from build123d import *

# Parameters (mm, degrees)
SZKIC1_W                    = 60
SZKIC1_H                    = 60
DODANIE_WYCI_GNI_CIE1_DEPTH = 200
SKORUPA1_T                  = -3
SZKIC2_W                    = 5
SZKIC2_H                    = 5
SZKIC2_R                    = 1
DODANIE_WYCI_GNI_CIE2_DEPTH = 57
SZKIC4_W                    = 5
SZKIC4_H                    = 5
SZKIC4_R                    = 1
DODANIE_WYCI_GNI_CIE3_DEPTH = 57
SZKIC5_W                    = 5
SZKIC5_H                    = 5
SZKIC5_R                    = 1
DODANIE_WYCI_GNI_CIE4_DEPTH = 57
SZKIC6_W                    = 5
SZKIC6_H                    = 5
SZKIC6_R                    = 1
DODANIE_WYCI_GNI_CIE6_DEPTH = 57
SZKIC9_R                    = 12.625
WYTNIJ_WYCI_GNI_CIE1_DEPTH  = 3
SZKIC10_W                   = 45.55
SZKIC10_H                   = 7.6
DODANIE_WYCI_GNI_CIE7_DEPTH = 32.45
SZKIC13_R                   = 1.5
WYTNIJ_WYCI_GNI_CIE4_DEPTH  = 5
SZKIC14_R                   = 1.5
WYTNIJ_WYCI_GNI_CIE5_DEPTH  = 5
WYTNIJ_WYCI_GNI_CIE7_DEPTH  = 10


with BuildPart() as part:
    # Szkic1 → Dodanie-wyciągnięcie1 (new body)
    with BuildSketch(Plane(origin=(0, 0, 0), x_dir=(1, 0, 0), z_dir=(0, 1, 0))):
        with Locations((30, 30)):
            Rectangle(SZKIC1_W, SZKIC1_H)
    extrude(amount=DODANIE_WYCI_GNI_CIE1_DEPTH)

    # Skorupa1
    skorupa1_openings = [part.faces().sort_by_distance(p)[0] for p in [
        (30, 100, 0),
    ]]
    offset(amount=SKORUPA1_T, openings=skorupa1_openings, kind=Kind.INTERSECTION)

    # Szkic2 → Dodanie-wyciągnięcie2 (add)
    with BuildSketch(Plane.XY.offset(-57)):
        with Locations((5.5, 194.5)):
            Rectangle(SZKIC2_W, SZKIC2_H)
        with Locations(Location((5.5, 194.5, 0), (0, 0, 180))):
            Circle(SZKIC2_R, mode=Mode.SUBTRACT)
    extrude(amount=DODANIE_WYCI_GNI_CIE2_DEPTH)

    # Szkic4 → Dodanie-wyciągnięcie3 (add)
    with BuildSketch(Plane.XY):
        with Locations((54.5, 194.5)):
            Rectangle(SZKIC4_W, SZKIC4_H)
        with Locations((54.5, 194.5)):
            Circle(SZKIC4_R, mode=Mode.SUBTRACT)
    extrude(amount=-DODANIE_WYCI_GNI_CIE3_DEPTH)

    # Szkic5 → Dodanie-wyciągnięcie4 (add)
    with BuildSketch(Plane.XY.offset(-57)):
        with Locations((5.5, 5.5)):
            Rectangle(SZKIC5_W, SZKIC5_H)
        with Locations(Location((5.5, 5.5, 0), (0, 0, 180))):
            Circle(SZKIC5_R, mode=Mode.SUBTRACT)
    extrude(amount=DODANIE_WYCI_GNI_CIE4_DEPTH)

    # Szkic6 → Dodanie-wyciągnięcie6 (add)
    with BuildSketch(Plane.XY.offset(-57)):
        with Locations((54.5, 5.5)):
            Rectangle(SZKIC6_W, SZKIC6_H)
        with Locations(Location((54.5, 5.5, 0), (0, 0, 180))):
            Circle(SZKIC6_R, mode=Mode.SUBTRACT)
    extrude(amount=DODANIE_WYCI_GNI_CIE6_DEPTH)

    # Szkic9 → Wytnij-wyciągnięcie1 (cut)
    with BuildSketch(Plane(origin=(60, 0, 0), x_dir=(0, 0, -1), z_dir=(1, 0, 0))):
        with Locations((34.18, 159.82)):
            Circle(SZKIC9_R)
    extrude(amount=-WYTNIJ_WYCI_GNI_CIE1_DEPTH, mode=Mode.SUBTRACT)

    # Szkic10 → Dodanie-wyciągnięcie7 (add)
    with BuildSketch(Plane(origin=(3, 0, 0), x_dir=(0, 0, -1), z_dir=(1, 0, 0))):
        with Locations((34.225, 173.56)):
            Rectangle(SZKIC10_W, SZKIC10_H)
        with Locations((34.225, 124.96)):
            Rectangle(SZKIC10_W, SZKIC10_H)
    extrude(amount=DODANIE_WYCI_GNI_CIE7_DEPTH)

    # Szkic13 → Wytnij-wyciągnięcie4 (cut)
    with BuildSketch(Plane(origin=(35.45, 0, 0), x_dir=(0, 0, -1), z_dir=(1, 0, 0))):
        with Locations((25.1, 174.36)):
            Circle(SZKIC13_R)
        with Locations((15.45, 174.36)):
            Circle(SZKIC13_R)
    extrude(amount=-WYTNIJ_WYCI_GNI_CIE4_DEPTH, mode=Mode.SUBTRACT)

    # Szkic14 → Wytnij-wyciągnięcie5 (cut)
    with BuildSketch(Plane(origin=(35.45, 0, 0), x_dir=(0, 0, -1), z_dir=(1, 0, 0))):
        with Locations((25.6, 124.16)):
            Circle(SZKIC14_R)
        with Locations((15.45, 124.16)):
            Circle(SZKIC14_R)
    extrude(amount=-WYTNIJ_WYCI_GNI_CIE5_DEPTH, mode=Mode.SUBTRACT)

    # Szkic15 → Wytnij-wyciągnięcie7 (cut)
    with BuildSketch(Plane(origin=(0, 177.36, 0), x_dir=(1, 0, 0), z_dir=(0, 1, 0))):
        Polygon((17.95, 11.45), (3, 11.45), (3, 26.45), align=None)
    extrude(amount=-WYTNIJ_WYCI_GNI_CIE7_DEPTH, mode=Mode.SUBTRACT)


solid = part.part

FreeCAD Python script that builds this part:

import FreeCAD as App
import Part
import Sketcher
Q = App.Units.Quantity


def faces_at(feature, points):
    """Names of the faces that lie closest to the given points."""
    faces = feature.Shape.Faces
    near = lambda p: min(range(len(faces)), key=lambda i: faces[i].distToShape(Part.Vertex(*p))[0])
    return sorted({f"Face{near(p) + 1}" for p in points})

doc = App.newDocument("Part")
body = doc.addObject("PartDesign::Body", "Body")

# Sketch on XZ plane
sketch1 = body.newObject("Sketcher::SketchObject", "Sketch")
sketch1.AttachmentSupport = (doc.getObject("XZ_Plane"), [""])
sketch1.MapMode = "FlatFace"
sketch1.addGeometry([
    Part.LineSegment(App.Vector(0, -60, 0), App.Vector(0, 0, 0)),
    Part.LineSegment(App.Vector(0, 0, 0), App.Vector(60, 0, 0)),
    Part.LineSegment(App.Vector(60, 0, 0), App.Vector(60, -60, 0)),
    Part.LineSegment(App.Vector(60, -60, 0), App.Vector(0, -60, 0)),
], False)
sketch1.addConstraint([
    Sketcher.Constraint("Coincident", 0, 2, 1, 1),
    Sketcher.Constraint("Coincident", 1, 2, 2, 1),
    Sketcher.Constraint("Coincident", 2, 2, 3, 1),
    Sketcher.Constraint("Coincident", 3, 2, 0, 1),
    Sketcher.Constraint("Vertical", 0),
    Sketcher.Constraint("Horizontal", 1),
    Sketcher.Constraint("Vertical", 2),
    Sketcher.Constraint("Horizontal", 3),
    Sketcher.Constraint("Coincident", 0, 2, -1, 1),
    Sketcher.Constraint("Equal", 3, 0),
    Sketcher.Constraint("DistanceX", 1, 1, 1, 2, Q("60 mm")),
])
pad1 = body.newObject("PartDesign::Pad", "Pad")
pad1.Profile = sketch1
pad1.Length = 200
pad1.Reversed = True
doc.recompute()

thickness = body.newObject("PartDesign::Thickness", "Thickness")
thickness.Base = (pad1, faces_at(pad1, [(30, 100, 0)]))
thickness.Value = 3
thickness.Reversed = True
thickness.Join = "Intersection"

# Sketch on XY plane
sketch2 = body.newObject("Sketcher::SketchObject", "Sketch001")
sketch2.AttachmentSupport = (doc.getObject("XY_Plane"), [""])
sketch2.MapMode = "FlatFace"
sketch2.AttachmentOffset = App.Placement(App.Vector(0, 0, -57), App.Rotation())
sketch2.addGeometry([
    Part.LineSegment(App.Vector(3, 197, 0), App.Vector(3, 192, 0)),  # 0
    Part.LineSegment(App.Vector(3, 192, 0), App.Vector(8, 192, 0)),  # 1
    Part.LineSegment(App.Vector(8, 192, 0), App.Vector(8, 197, 0)),  # 2
    Part.LineSegment(App.Vector(8, 197, 0), App.Vector(3, 197, 0)),  # 3
    Part.Circle(App.Vector(5.5, 194.5, 0), App.Vector(0, 0, 1), 1),  # 4
], False)
sketch2.addConstraint([
    Sketcher.Constraint("Coincident", 0, 2, 1, 1),
    Sketcher.Constraint("Coincident", 1, 2, 2, 1),
    Sketcher.Constraint("Coincident", 2, 2, 3, 1),
    Sketcher.Constraint("Coincident", 3, 2, 0, 1),
    Sketcher.Constraint("Vertical", 0),
    Sketcher.Constraint("Horizontal", 1),
    Sketcher.Constraint("Vertical", 2),
    Sketcher.Constraint("Horizontal", 3),
    Sketcher.Constraint("Equal", 3, 0),
    Sketcher.Constraint("Diameter", 4, Q("2 mm")),
    Sketcher.Constraint("DistanceX", 1, 1, 1, 2, Q("5 mm")),
    Sketcher.Constraint("DistanceX", -1, 1, 0, 2, Q("3 mm")),
    Sketcher.Constraint("DistanceY", -1, 1, 0, 2, Q("192 mm")),
    Sketcher.Constraint("DistanceX", -1, 1, 4, 3, Q("5.5 mm")),
    Sketcher.Constraint("DistanceY", -1, 1, 4, 3, Q("194.5 mm")),
])
pad2 = body.newObject("PartDesign::Pad", "Pad001")
pad2.Profile = sketch2
pad2.Length = 57

# Sketch on XY plane
sketch3 = body.newObject("Sketcher::SketchObject", "Sketch002")
sketch3.AttachmentSupport = (doc.getObject("XY_Plane"), [""])
sketch3.MapMode = "FlatFace"
sketch3.addGeometry([
    Part.LineSegment(App.Vector(52, 197, 0), App.Vector(52, 192, 0)),  # 0
    Part.LineSegment(App.Vector(52, 192, 0), App.Vector(57, 192, 0)),  # 1
    Part.LineSegment(App.Vector(57, 192, 0), App.Vector(57, 197, 0)),  # 2
    Part.LineSegment(App.Vector(57, 197, 0), App.Vector(52, 197, 0)),  # 3
    Part.Circle(App.Vector(54.5, 194.5, 0), App.Vector(0, 0, 1), 1),  # 4
], False)
sketch3.addConstraint([
    Sketcher.Constraint("Coincident", 0, 2, 1, 1),
    Sketcher.Constraint("Coincident", 1, 2, 2, 1),
    Sketcher.Constraint("Coincident", 2, 2, 3, 1),
    Sketcher.Constraint("Coincident", 3, 2, 0, 1),
    Sketcher.Constraint("Vertical", 0),
    Sketcher.Constraint("Horizontal", 1),
    Sketcher.Constraint("Vertical", 2),
    Sketcher.Constraint("Horizontal", 3),
    Sketcher.Constraint("Equal", 3, 0),
    Sketcher.Constraint("Diameter", 4, Q("2 mm")),
    Sketcher.Constraint("DistanceX", 1, 1, 1, 2, Q("5 mm")),
    Sketcher.Constraint("DistanceX", -1, 1, 0, 2, Q("52 mm")),
    Sketcher.Constraint("DistanceY", -1, 1, 0, 2, Q("192 mm")),
    Sketcher.Constraint("DistanceX", -1, 1, 4, 3, Q("54.5 mm")),
    Sketcher.Constraint("DistanceY", -1, 1, 4, 3, Q("194.5 mm")),
])
pad3 = body.newObject("PartDesign::Pad", "Pad002")
pad3.Profile = sketch3
pad3.Length = 57
pad3.Reversed = True

# Sketch on XY plane
sketch4 = body.newObject("Sketcher::SketchObject", "Sketch003")
sketch4.AttachmentSupport = (doc.getObject("XY_Plane"), [""])
sketch4.MapMode = "FlatFace"
sketch4.AttachmentOffset = App.Placement(App.Vector(0, 0, -57), App.Rotation())
sketch4.addGeometry([
    Part.LineSegment(App.Vector(3, 8, 0), App.Vector(3, 3, 0)),  # 0
    Part.LineSegment(App.Vector(3, 3, 0), App.Vector(8, 3, 0)),  # 1
    Part.LineSegment(App.Vector(8, 3, 0), App.Vector(8, 8, 0)),  # 2
    Part.LineSegment(App.Vector(8, 8, 0), App.Vector(3, 8, 0)),  # 3
    Part.Circle(App.Vector(5.5, 5.5, 0), App.Vector(0, 0, 1), 1),  # 4
], False)
sketch4.addConstraint([
    Sketcher.Constraint("Coincident", 0, 2, 1, 1),
    Sketcher.Constraint("Coincident", 1, 2, 2, 1),
    Sketcher.Constraint("Coincident", 2, 2, 3, 1),
    Sketcher.Constraint("Coincident", 3, 2, 0, 1),
    Sketcher.Constraint("Vertical", 0),
    Sketcher.Constraint("Horizontal", 1),
    Sketcher.Constraint("Vertical", 2),
    Sketcher.Constraint("Horizontal", 3),
    Sketcher.Constraint("Equal", 3, 0),
    Sketcher.Constraint("Diameter", 4, Q("2 mm")),
    Sketcher.Constraint("DistanceX", 1, 1, 1, 2, Q("5 mm")),
    Sketcher.Constraint("DistanceX", -1, 1, 0, 2, Q("3 mm")),
    Sketcher.Constraint("DistanceY", -1, 1, 0, 2, Q("3 mm")),
    Sketcher.Constraint("DistanceX", -1, 1, 4, 3, Q("5.5 mm")),
    Sketcher.Constraint("DistanceY", -1, 1, 4, 3, Q("5.5 mm")),
])
pad4 = body.newObject("PartDesign::Pad", "Pad003")
pad4.Profile = sketch4
pad4.Length = 57

# Sketch on XY plane
sketch5 = body.newObject("Sketcher::SketchObject", "Sketch004")
sketch5.AttachmentSupport = (doc.getObject("XY_Plane"), [""])
sketch5.MapMode = "FlatFace"
sketch5.AttachmentOffset = App.Placement(App.Vector(0, 0, -57), App.Rotation())
sketch5.addGeometry([
    Part.LineSegment(App.Vector(52, 8, 0), App.Vector(52, 3, 0)),  # 0
    Part.LineSegment(App.Vector(52, 3, 0), App.Vector(57, 3, 0)),  # 1
    Part.LineSegment(App.Vector(57, 3, 0), App.Vector(57, 8, 0)),  # 2
    Part.LineSegment(App.Vector(57, 8, 0), App.Vector(52, 8, 0)),  # 3
    Part.Circle(App.Vector(54.5, 5.5, 0), App.Vector(0, 0, 1), 1),  # 4
], False)
sketch5.addConstraint([
    Sketcher.Constraint("Coincident", 0, 2, 1, 1),
    Sketcher.Constraint("Coincident", 1, 2, 2, 1),
    Sketcher.Constraint("Coincident", 2, 2, 3, 1),
    Sketcher.Constraint("Coincident", 3, 2, 0, 1),
    Sketcher.Constraint("Vertical", 0),
    Sketcher.Constraint("Horizontal", 1),
    Sketcher.Constraint("Vertical", 2),
    Sketcher.Constraint("Horizontal", 3),
    Sketcher.Constraint("Equal", 3, 0),
    Sketcher.Constraint("Diameter", 4, Q("2 mm")),
    Sketcher.Constraint("DistanceX", 1, 1, 1, 2, Q("5 mm")),
    Sketcher.Constraint("DistanceX", -1, 1, 0, 2, Q("52 mm")),
    Sketcher.Constraint("DistanceY", -1, 1, 0, 2, Q("3 mm")),
    Sketcher.Constraint("DistanceX", -1, 1, 4, 3, Q("54.5 mm")),
    Sketcher.Constraint("DistanceY", -1, 1, 4, 3, Q("5.5 mm")),
])
pad5 = body.newObject("PartDesign::Pad", "Pad004")
pad5.Profile = sketch5
pad5.Length = 57

# Sketch on YZ plane
sketch6 = body.newObject("Sketcher::SketchObject", "Sketch005")
sketch6.AttachmentSupport = (doc.getObject("YZ_Plane"), [""])
sketch6.MapMode = "FlatFace"
sketch6.AttachmentOffset = App.Placement(App.Vector(0, 0, 60), App.Rotation())
sketch6.addGeometry(Part.Circle(App.Vector(160, -34, 0), App.Vector(0, 0, 1), 13), False)
sketch6.addConstraint([
    Sketcher.Constraint("Diameter", 0, Q("25.25 mm")),
    Sketcher.Constraint("DistanceX", -1, 1, 0, 3, Q("159.82 mm")),
    Sketcher.Constraint("DistanceY", 0, 3, -1, 1, Q("34.18 mm")),
])
pocket1 = body.newObject("PartDesign::Pocket", "Pocket")
pocket1.Profile = sketch6
pocket1.Length = 3

# Sketch on YZ plane
sketch7 = body.newObject("Sketcher::SketchObject", "Sketch006")
sketch7.AttachmentSupport = (doc.getObject("YZ_Plane"), [""])
sketch7.MapMode = "FlatFace"
sketch7.AttachmentOffset = App.Placement(App.Vector(0, 0, 3), App.Rotation())
sketch7.addGeometry([
    Part.LineSegment(App.Vector(177, -11, 0), App.Vector(170, -11, 0)),  # 0
    Part.LineSegment(App.Vector(170, -11, 0), App.Vector(170, -57, 0)),  # 1
    Part.LineSegment(App.Vector(170, -57, 0), App.Vector(177, -57, 0)),  # 2
    Part.LineSegment(App.Vector(177, -57, 0), App.Vector(177, -11, 0)),  # 3
    Part.LineSegment(App.Vector(129, -11, 0), App.Vector(121, -11, 0)),  # 4
    Part.LineSegment(App.Vector(121, -11, 0), App.Vector(121, -57, 0)),  # 5
    Part.LineSegment(App.Vector(121, -57, 0), App.Vector(129, -57, 0)),  # 6
    Part.LineSegment(App.Vector(129, -57, 0), App.Vector(129, -11, 0)),  # 7
], False)
sketch7.addConstraint([
    Sketcher.Constraint("Coincident", 0, 2, 1, 1),
    Sketcher.Constraint("Coincident", 1, 2, 2, 1),
    Sketcher.Constraint("Coincident", 2, 2, 3, 1),
    Sketcher.Constraint("Coincident", 3, 2, 0, 1),
    Sketcher.Constraint("Coincident", 4, 2, 5, 1),
    Sketcher.Constraint("Coincident", 5, 2, 6, 1),
    Sketcher.Constraint("Coincident", 6, 2, 7, 1),
    Sketcher.Constraint("Coincident", 7, 2, 4, 1),
    Sketcher.Constraint("Horizontal", 0),
    Sketcher.Constraint("Vertical", 1),
    Sketcher.Constraint("Horizontal", 2),
    Sketcher.Constraint("Vertical", 3),
    Sketcher.Constraint("Horizontal", 4),
    Sketcher.Constraint("Vertical", 5),
    Sketcher.Constraint("Horizontal", 6),
    Sketcher.Constraint("Vertical", 7),
    Sketcher.Constraint("Horizontal", 3, 2, 4, 2),
    Sketcher.Constraint("Horizontal", 2, 2, 5, 2),
    Sketcher.Constraint("Equal", 2, 4),
    Sketcher.Constraint("DistanceX", 0, 2, 0, 1, Q("7.6 mm")),
    Sketcher.Constraint("DistanceY", 1, 2, -1, 1, Q("57 mm")),
    Sketcher.Constraint("DistanceX", 6, 2, 1, 2, Q("41 mm")),
    Sketcher.Constraint("DistanceY", 1, 2, 1, 1, Q("45.55 mm")),
    Sketcher.Constraint("DistanceX", -1, 1, 0, 2, Q("169.76 mm")),
])
pad6 = body.newObject("PartDesign::Pad", "Pad005")
pad6.Profile = sketch7
pad6.Length = 32.45

# Sketch on YZ plane
sketch8 = body.newObject("Sketcher::SketchObject", "Sketch007")
sketch8.AttachmentSupport = (doc.getObject("YZ_Plane"), [""])
sketch8.MapMode = "FlatFace"
sketch8.AttachmentOffset = App.Placement(App.Vector(0, 0, 35.45), App.Rotation())
sketch8.addGeometry([
    Part.Circle(App.Vector(174.4, -25.1, 0), App.Vector(0, 0, 1), 1.5),
    Part.Circle(App.Vector(174.4, -15.4, 0), App.Vector(0, 0, 1), 1.5),
], False)
sketch8.addConstraint([
    Sketcher.Constraint("Equal", 0, 1),
    Sketcher.Constraint("Vertical", 0, 3, 1, 3),
    Sketcher.Constraint("Diameter", 0, Q("3 mm")),
    Sketcher.Constraint("DistanceY", 0, 3, -1, 1, Q("25.1 mm")),
    Sketcher.Constraint("DistanceX", -1, 1, 0, 3, Q("174.36 mm")),
    Sketcher.Constraint("DistanceY", 1, 3, -1, 1, Q("15.45 mm")),
])
pocket2 = body.newObject("PartDesign::Pocket", "Pocket001")
pocket2.Profile = sketch8
pocket2.Length = 5

# Sketch on YZ plane
sketch9 = body.newObject("Sketcher::SketchObject", "Sketch008")
sketch9.AttachmentSupport = (doc.getObject("YZ_Plane"), [""])
sketch9.MapMode = "FlatFace"
sketch9.AttachmentOffset = App.Placement(App.Vector(0, 0, 35.45), App.Rotation())
sketch9.addGeometry([
    Part.Circle(App.Vector(124.2, -25.6, 0), App.Vector(0, 0, 1), 1.5),
    Part.Circle(App.Vector(124.2, -15.4, 0), App.Vector(0, 0, 1), 1.5),
], False)
sketch9.addConstraint([
    Sketcher.Constraint("Equal", 0, 1),
    Sketcher.Constraint("Vertical", 0, 3, 1, 3),
    Sketcher.Constraint("Diameter", 0, Q("3 mm")),
    Sketcher.Constraint("DistanceY", 0, 3, -1, 1, Q("25.6 mm")),
    Sketcher.Constraint("DistanceX", -1, 1, 0, 3, Q("124.16 mm")),
    Sketcher.Constraint("DistanceY", 1, 3, -1, 1, Q("15.45 mm")),
])
pocket3 = body.newObject("PartDesign::Pocket", "Pocket002")
pocket3.Profile = sketch9
pocket3.Length = 5

# Sketch on XZ plane
sketch10 = body.newObject("Sketcher::SketchObject", "Sketch009")
sketch10.AttachmentSupport = (doc.getObject("XZ_Plane"), [""])
sketch10.MapMode = "FlatFace"
sketch10.AttachmentOffset = App.Placement(App.Vector(0, 0, -177.36), App.Rotation())
sketch10.addGeometry([
    Part.LineSegment(App.Vector(3, -11, 0), App.Vector(18, -11, 0)),
    Part.LineSegment(App.Vector(18, -11, 0), App.Vector(3, -26, 0)),
    Part.LineSegment(App.Vector(3, -26, 0), App.Vector(3, -11, 0)),
], False)
sketch10.addConstraint([
    Sketcher.Constraint("Coincident", 0, 2, 1, 1),
    Sketcher.Constraint("Coincident", 1, 2, 2, 1),
    Sketcher.Constraint("Coincident", 2, 2, 0, 1),
    Sketcher.Constraint("Horizontal", 0),
    Sketcher.Constraint("Vertical", 2),
    Sketcher.Constraint("DistanceY", 2, 1, 2, 2, Q("15 mm")),
    Sketcher.Constraint("DistanceX", -1, 1, 1, 2, Q("3 mm")),
    Sketcher.Constraint("DistanceX", 0, 1, 0, 2, Q("14.95 mm")),
    Sketcher.Constraint("DistanceY", 0, 2, -1, 1, Q("11.45 mm")),
])
pocket4 = body.newObject("PartDesign::Pocket", "Pocket003")
pocket4.Profile = sketch10
pocket4.Length = 10
pocket4.Reversed = True

doc.recompute()
